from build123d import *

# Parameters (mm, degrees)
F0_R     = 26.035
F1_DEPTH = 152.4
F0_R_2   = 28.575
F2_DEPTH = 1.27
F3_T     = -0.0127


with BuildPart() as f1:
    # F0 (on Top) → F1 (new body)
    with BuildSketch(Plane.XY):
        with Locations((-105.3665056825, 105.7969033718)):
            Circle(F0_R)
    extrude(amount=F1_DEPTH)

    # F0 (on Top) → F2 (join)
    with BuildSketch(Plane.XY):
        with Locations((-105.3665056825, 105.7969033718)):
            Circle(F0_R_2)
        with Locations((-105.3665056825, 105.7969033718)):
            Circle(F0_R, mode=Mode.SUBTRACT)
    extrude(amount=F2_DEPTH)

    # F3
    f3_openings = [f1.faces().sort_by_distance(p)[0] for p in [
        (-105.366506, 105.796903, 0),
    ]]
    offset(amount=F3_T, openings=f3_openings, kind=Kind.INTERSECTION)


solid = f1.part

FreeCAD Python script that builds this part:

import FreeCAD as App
import Part
import Sketcher

V = App.Vector
Q = App.Units.Quantity


def faces_at(feature, points):
    """Names of the faces that lie closest to the given points."""
    faces = feature.Shape.Faces
    near = lambda p: min(range(len(faces)), key=lambda i: faces[i].distToShape(Part.Vertex(*p))[0])
    return sorted({f"Face{near(p) + 1}" for p in points})

doc = App.newDocument("Part")
params = doc.addObject("Spreadsheet::Sheet", "Params")
for row, (alias, value) in enumerate([
    ("sketch1_diameter", "2.05 in"),
    ("pad1_length", "6 in"),
    ("sketch2_diameter", "2.25 in"),
    ("sketch2_diameter2", "2.05 in"),
    ("pad2_length", "0.05 in"),
    ("thickness_wall", "0.0005 in"),
], start=1):
    params.set(f"A{row}", alias)
    params.set(f"B{row}", "=" + value)
    params.setAlias(f"B{row}", alias)

body = doc.addObject("PartDesign::Body", "Body")

sketch1 = doc.addObject("Sketcher::SketchObject", "Sketch")
body.addObject(sketch1)
sketch1.AttachmentSupport = (doc.XY_Plane, [""])
sketch1.MapMode = "FlatFace"
sketch1.addGeometry(Part.Circle(V(-105, 106, 0), V(0, 0, 1), 26), False)
sketch1.addConstraint(Sketcher.Constraint("Diameter", 0, Q("2.05 in")))
sketch1.addConstraint(Sketcher.Constraint("DistanceX", 0, 3, -1, 1, Q("105.366506 mm")))
sketch1.addConstraint(Sketcher.Constraint("DistanceY", -1, 1, 0, 3, Q("105.796903 mm")))
sketch1.setExpression("Constraints[0]", "Params.sketch1_diameter")
pad1 = doc.addObject("PartDesign::Pad", "Pad")
body.addObject(pad1)
pad1.Profile = sketch1
pad1.setExpression("Length", "Params.pad1_length")

sketch2 = doc.addObject("Sketcher::SketchObject", "Sketch001")
body.addObject(sketch2)
sketch2.AttachmentSupport = (doc.XY_Plane, [""])
sketch2.MapMode = "FlatFace"
sketch2.addGeometry(Part.Circle(V(-105, 106, 0), V(0, 0, 1), 29), False)
sketch2.addGeometry(Part.Circle(V(-105, 106, 0), V(0, 0, 1), 26), False)
sketch2.addConstraint(Sketcher.Constraint("Coincident", 1, 3, 0, 3))
sketch2.addConstraint(Sketcher.Constraint("Diameter", 0, Q("2.25 in")))
sketch2.addConstraint(Sketcher.Constraint("Diameter", 1, Q("2.05 in")))
sketch2.addConstraint(Sketcher.Constraint("DistanceX", 0, 3, -1, 1, Q("105.366506 mm")))
sketch2.addConstraint(Sketcher.Constraint("DistanceY", -1, 1, 0, 3, Q("105.796903 mm")))
sketch2.setExpression("Constraints[1]", "Params.sketch2_diameter")
sketch2.setExpression("Constraints[2]", "Params.sketch2_diameter2")
pad2 = doc.addObject("PartDesign::Pad", "Pad001")
body.addObject(pad2)
pad2.Profile = sketch2
pad2.setExpression("Length", "Params.pad2_length")
doc.recompute()

thickness = doc.addObject("PartDesign::Thickness", "Thickness")
body.addObject(thickness)
thickness.Base = (pad2, faces_at(pad2, [(-105.367, 105.797, 0)]))
thickness.setExpression("Value", "Params.thickness_wall")
thickness.Reversed = True
thickness.Join = "Intersection"

doc.recompute()
